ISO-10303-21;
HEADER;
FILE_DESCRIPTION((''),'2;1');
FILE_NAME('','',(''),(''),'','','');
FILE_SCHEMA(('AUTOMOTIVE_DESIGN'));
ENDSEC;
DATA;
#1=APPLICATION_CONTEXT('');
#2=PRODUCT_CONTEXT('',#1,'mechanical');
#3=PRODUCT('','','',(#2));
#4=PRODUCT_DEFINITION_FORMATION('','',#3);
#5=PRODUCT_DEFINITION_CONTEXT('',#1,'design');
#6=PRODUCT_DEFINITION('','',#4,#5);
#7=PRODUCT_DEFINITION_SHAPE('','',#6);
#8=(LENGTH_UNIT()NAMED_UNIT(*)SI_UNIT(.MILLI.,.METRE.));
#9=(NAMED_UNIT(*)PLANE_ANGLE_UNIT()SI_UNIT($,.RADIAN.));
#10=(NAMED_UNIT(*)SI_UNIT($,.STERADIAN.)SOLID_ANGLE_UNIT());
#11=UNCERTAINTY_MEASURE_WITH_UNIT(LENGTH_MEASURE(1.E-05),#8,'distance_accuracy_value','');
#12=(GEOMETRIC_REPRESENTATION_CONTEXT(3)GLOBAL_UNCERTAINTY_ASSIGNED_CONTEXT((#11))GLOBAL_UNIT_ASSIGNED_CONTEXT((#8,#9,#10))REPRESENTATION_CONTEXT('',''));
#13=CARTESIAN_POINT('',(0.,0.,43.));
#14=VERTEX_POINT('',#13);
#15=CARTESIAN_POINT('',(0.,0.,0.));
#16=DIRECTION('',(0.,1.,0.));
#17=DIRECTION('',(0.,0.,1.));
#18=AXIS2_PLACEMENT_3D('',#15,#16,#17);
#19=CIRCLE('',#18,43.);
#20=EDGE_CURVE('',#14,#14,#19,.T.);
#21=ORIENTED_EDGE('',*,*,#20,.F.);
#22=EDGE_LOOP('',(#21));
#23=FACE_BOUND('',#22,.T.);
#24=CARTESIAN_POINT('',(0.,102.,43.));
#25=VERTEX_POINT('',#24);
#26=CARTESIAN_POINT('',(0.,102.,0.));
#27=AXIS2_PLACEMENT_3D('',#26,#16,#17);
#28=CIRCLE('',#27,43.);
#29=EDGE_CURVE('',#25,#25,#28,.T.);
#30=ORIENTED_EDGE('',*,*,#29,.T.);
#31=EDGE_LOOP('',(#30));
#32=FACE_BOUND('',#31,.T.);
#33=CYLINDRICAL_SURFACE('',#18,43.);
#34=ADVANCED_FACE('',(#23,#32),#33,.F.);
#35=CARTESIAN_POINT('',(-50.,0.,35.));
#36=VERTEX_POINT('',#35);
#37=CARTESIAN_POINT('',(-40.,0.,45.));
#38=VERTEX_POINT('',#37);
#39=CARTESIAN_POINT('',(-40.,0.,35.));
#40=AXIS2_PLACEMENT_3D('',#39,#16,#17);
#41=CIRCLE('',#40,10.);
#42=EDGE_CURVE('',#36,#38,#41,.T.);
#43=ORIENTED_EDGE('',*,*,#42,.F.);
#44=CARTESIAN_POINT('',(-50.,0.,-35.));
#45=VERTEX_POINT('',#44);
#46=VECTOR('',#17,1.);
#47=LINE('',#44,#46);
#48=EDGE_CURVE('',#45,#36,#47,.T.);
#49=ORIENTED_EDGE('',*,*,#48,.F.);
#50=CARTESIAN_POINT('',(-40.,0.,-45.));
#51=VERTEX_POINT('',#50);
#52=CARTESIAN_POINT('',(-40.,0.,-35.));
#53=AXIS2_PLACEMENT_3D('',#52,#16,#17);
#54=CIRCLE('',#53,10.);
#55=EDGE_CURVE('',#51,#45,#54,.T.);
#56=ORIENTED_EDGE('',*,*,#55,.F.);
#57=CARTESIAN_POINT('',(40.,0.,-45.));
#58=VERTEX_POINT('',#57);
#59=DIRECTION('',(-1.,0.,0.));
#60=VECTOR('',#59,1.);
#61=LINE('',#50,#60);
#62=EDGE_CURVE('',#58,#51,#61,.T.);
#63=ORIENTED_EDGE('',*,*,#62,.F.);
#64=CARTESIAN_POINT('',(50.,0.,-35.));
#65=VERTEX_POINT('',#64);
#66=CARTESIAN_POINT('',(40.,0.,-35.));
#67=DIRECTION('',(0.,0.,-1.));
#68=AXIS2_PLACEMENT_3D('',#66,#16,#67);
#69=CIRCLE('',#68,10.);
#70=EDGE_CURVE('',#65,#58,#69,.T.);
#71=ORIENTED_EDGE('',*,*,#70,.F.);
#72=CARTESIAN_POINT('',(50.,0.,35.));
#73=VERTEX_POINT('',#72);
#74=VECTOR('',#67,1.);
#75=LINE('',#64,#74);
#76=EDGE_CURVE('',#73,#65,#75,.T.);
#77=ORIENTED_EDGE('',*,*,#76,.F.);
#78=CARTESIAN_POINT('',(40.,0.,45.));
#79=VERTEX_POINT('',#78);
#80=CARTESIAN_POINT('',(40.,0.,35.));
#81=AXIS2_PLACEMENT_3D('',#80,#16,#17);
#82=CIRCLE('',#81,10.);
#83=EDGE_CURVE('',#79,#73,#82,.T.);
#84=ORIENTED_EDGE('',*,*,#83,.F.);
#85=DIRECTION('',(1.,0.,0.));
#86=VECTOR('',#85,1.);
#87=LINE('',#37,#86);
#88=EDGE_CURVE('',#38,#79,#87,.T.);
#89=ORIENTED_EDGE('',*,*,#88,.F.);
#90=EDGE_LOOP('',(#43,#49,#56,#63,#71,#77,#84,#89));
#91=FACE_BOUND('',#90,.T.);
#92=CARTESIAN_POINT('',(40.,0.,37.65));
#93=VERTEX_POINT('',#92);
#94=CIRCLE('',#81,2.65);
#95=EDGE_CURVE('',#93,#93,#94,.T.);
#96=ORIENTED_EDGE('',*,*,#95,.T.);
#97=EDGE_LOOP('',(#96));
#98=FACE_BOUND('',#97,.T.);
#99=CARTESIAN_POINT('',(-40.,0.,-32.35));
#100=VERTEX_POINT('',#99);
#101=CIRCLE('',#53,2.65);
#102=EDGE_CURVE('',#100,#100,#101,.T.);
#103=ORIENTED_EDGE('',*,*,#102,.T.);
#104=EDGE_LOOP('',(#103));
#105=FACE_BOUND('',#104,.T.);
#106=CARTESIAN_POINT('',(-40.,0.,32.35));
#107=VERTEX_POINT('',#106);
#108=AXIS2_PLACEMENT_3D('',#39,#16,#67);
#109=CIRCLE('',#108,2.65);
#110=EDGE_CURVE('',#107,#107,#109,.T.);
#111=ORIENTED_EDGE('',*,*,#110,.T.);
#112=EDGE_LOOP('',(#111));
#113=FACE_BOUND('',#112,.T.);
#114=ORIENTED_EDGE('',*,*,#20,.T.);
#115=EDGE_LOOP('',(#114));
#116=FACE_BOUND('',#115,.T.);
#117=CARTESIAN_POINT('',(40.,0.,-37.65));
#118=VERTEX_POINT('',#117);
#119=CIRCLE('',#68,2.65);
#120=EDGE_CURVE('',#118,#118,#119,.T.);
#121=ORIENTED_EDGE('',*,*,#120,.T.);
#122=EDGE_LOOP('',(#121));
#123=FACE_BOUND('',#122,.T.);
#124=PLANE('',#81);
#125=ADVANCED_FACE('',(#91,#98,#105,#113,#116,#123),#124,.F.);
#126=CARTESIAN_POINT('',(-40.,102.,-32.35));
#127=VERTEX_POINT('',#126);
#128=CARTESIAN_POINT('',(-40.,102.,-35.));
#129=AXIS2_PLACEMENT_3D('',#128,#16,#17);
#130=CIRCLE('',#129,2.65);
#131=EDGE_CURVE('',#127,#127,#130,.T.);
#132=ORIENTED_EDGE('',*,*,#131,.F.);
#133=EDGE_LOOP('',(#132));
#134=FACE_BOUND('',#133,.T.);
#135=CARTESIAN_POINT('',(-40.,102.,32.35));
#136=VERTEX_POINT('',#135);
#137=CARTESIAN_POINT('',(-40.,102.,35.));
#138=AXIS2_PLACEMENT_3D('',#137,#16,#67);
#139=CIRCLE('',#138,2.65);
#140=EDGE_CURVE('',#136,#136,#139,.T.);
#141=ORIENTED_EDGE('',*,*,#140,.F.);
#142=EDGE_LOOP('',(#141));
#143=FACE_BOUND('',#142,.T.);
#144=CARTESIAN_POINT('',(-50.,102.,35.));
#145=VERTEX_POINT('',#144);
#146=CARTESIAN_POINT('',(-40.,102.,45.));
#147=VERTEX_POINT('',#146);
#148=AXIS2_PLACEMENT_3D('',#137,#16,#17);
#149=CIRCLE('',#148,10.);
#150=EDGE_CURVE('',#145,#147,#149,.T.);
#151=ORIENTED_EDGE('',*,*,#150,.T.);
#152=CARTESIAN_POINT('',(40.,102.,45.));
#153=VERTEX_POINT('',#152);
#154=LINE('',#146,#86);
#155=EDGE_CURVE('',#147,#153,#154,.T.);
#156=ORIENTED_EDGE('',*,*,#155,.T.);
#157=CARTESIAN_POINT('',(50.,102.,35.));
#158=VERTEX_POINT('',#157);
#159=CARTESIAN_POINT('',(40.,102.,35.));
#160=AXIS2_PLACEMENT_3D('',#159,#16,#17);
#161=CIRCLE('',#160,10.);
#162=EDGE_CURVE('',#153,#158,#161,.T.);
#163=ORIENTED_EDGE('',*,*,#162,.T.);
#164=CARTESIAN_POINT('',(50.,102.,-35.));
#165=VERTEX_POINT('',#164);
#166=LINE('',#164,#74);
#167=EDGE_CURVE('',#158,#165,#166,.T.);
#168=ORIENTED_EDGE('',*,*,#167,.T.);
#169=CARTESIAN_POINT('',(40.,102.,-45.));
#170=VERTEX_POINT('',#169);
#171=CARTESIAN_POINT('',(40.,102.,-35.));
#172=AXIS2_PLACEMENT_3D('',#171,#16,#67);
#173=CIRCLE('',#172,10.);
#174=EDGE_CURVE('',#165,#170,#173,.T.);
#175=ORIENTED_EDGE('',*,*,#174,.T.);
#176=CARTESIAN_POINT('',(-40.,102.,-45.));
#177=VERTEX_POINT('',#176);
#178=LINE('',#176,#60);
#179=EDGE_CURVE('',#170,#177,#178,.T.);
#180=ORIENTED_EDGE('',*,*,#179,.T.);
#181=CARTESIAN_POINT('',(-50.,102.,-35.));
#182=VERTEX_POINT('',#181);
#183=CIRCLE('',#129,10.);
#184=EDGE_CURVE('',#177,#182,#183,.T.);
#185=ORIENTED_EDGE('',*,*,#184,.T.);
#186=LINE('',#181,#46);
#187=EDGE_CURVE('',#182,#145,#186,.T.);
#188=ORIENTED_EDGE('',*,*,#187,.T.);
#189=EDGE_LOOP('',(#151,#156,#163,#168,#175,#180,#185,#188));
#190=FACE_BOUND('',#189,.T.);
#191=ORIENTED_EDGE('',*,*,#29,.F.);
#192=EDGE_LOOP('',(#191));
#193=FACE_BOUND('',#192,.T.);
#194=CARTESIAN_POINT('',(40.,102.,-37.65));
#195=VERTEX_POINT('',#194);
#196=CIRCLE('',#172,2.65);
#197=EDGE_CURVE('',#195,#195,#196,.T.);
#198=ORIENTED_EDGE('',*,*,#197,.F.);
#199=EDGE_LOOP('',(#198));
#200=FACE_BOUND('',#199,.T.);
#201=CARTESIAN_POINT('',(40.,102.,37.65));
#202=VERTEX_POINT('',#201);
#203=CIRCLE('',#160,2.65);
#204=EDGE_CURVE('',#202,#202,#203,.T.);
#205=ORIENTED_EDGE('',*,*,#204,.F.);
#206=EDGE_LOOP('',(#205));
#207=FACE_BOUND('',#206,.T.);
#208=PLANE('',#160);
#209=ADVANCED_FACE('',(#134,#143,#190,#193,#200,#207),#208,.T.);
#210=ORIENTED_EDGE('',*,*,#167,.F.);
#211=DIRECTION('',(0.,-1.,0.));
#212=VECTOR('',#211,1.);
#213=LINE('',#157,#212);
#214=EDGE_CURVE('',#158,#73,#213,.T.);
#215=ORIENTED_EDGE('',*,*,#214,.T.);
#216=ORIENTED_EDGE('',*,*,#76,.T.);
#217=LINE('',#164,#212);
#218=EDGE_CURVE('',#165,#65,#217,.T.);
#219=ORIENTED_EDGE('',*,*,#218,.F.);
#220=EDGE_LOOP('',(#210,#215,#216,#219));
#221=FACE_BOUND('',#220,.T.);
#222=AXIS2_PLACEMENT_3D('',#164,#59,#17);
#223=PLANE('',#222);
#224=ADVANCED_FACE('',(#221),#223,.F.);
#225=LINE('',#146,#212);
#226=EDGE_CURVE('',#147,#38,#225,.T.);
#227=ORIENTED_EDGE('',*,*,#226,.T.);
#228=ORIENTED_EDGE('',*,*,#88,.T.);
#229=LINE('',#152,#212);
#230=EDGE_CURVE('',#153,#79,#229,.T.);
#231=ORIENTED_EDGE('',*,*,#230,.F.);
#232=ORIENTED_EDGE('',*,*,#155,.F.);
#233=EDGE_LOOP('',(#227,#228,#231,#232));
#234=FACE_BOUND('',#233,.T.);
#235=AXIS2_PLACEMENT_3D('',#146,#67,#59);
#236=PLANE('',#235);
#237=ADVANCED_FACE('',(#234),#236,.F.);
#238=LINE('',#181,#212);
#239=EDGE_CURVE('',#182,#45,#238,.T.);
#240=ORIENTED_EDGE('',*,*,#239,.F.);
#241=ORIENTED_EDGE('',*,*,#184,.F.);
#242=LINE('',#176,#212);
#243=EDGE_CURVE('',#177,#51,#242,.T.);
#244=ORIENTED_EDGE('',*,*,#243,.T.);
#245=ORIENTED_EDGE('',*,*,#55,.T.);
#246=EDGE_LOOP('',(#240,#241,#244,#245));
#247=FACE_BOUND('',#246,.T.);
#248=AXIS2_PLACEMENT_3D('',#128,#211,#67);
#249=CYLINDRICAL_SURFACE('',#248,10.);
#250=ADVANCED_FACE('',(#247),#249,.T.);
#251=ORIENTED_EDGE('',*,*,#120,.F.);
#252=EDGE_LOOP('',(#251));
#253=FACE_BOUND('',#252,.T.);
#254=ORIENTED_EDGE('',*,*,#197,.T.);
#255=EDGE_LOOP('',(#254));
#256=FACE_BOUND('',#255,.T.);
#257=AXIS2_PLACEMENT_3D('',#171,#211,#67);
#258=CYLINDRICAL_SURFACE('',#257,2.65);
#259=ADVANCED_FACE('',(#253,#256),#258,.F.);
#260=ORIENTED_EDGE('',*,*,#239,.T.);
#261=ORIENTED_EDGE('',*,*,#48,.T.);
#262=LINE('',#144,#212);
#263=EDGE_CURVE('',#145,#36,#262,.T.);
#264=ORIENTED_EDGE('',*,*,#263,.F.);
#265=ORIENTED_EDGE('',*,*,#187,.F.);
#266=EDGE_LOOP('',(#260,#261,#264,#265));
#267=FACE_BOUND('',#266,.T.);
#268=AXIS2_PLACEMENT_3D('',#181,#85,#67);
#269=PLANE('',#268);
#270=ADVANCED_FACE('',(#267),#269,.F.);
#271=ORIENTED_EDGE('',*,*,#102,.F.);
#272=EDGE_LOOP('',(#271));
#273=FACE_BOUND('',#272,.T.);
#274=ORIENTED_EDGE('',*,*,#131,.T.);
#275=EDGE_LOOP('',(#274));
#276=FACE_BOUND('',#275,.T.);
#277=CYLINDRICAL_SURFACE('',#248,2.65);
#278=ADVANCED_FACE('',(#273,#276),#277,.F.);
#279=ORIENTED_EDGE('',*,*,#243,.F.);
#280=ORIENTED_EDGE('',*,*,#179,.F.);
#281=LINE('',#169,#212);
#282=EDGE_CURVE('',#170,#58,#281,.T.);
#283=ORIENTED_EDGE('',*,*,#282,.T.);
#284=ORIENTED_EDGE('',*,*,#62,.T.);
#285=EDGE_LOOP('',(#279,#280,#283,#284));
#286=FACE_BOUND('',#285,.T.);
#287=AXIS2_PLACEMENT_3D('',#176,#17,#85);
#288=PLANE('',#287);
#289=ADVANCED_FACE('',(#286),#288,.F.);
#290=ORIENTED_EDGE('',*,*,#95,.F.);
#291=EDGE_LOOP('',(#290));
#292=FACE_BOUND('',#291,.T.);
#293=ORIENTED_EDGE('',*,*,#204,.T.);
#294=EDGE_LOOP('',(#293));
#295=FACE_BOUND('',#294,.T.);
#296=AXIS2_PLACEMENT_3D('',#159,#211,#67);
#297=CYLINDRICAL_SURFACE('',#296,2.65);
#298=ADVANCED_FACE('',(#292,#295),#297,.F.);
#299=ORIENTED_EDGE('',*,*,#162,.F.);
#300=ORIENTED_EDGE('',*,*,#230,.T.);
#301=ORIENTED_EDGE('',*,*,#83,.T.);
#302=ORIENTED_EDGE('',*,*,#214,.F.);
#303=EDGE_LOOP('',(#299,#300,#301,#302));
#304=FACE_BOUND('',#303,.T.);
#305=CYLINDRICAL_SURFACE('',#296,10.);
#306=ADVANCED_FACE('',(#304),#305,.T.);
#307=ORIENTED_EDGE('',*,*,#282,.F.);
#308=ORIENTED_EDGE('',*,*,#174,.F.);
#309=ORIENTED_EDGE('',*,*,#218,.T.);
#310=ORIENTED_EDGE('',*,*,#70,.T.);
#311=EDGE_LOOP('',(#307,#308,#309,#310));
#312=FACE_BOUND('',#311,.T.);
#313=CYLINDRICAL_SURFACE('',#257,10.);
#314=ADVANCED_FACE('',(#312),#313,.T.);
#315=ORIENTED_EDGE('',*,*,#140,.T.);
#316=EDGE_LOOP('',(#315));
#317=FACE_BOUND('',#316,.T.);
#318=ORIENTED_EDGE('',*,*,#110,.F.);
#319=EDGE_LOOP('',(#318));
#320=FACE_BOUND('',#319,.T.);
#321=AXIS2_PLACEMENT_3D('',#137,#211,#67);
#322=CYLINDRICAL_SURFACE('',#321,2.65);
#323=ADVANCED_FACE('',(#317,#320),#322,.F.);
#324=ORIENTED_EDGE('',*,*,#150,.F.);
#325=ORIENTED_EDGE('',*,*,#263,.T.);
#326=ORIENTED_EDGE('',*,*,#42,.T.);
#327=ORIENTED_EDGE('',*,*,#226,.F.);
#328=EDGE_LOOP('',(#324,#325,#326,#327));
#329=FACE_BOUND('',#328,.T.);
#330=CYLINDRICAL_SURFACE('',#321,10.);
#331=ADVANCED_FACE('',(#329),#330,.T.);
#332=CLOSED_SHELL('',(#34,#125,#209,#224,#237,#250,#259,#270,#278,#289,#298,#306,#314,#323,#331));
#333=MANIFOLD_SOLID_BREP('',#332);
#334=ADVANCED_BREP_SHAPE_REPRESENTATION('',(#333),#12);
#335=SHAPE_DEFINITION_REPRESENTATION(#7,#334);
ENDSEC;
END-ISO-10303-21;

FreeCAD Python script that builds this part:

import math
import FreeCAD as App
import Part
import Sketcher

V = App.Vector
Q = App.Units.Quantity

doc = App.newDocument("Part")
params = doc.addObject("Spreadsheet::Sheet", "Params")
for row, (alias, value) in enumerate([
    ("sketch1_radius", "10 mm"),
    ("sketch1_diameter", "5.3 mm"),
    ("sketch1_width", "80 mm"),
    ("sketch1_height", "70 mm"),
    ("pad1_length", "102 mm"),
    ("sketch2_diameter", "86 mm"),
], start=1):
    params.set(f"A{row}", alias)
    params.set(f"B{row}", "=" + value)
    params.setAlias(f"B{row}", alias)

body = doc.addObject("PartDesign::Body", "Body")

# Sketch on XZ plane
sketch1 = body.newObject("Sketcher::SketchObject", "Sketch")
sketch1.AttachmentSupport = (doc.getObject("XZ_Plane"), [""])
sketch1.MapMode = "FlatFace"
sketch1.addGeometry(Part.LineSegment(V(40, -45, 0), V(-40, -45, 0)), False)
sketch1.addGeometry(Part.ArcOfCircle(Part.Circle(V(-40, -35, 0), V(0, 0, 1), 10), math.radians(180), math.radians(270)), False)
sketch1.addGeometry(Part.LineSegment(V(-50, -35, 0), V(-50, 35, 0)), False)
sketch1.addGeometry(Part.ArcOfCircle(Part.Circle(V(-40, 35, 0), V(0, 0, 1), 10), math.radians(90), math.radians(180)), False)
sketch1.addGeometry(Part.LineSegment(V(-40, 45, 0), V(40, 45, 0)), False)
sketch1.addGeometry(Part.ArcOfCircle(Part.Circle(V(40, 35, 0), V(0, 0, 1), 10), math.radians(0), math.radians(90)), False)
sketch1.addGeometry(Part.LineSegment(V(50, 35, 0), V(50, -35, 0)), False)
sketch1.addGeometry(Part.ArcOfCircle(Part.Circle(V(40, -35, 0), V(0, 0, 1), 10), math.radians(-90), math.radians(0)), False)
sketch1.addGeometry(Part.Circle(V(40, 35, 0), V(0, 0, 1), 2.65), False)
sketch1.addGeometry(Part.Circle(V(-40, 35, 0), V(0, 0, 1), 2.65), False)
sketch1.addGeometry(Part.Circle(V(40, -35, 0), V(0, 0, 1), 2.65), False)
sketch1.addGeometry(Part.Circle(V(-40, -35, 0), V(0, 0, 1), 2.65), False)
sketch1.addConstraint(Sketcher.Constraint("Tangent", 0, 2, 1, 2))
sketch1.addConstraint(Sketcher.Constraint("Tangent", 1, 1, 2, 1))
sketch1.addConstraint(Sketcher.Constraint("Tangent", 2, 2, 3, 2))
sketch1.addConstraint(Sketcher.Constraint("Tangent", 3, 1, 4, 1))
sketch1.addConstraint(Sketcher.Constraint("Tangent", 4, 2, 5, 2))
sketch1.addConstraint(Sketcher.Constraint("Tangent", 5, 1, 6, 1))
sketch1.addConstraint(Sketcher.Constraint("Tangent", 6, 2, 7, 2))
sketch1.addConstraint(Sketcher.Constraint("Tangent", 7, 1, 0, 1))
sketch1.addConstraint(Sketcher.Constraint("Horizontal", 0))
sketch1.addConstraint(Sketcher.Constraint("Vertical", 2))
sketch1.addConstraint(Sketcher.Constraint("Horizontal", 4))
sketch1.addConstraint(Sketcher.Constraint("Vertical", 6))
sketch1.addConstraint(Sketcher.Constraint("Coincident", 8, 3, 5, 3))
sketch1.addConstraint(Sketcher.Constraint("Coincident", 9, 3, 3, 3))
sketch1.addConstraint(Sketcher.Constraint("Coincident", 10, 3, 7, 3))
sketch1.addConstraint(Sketcher.Constraint("Coincident", 11, 3, 1, 3))
sketch1.addConstraint(Sketcher.Constraint("Equal", 1, 3))
sketch1.addConstraint(Sketcher.Constraint("Equal", 3, 5))
sketch1.addConstraint(Sketcher.Constraint("Equal", 5, 7))
sketch1.addConstraint(Sketcher.Constraint("Equal", 8, 9))
sketch1.addConstraint(Sketcher.Constraint("Equal", 9, 10))
sketch1.addConstraint(Sketcher.Constraint("Equal", 10, 11))
sketch1.addConstraint(Sketcher.Constraint("Symmetric", 1, 3, 5, 3, -1, 1))
sketch1.addConstraint(Sketcher.Constraint("Radius", 1, Q("10 mm")))
sketch1.addConstraint(Sketcher.Constraint("Diameter", 8, Q("5.3 mm")))
sketch1.addConstraint(Sketcher.Constraint("DistanceX", 0, 2, 0, 1, Q("80 mm")))
sketch1.addConstraint(Sketcher.Constraint("DistanceY", 2, 1, 2, 2, Q("70 mm")))
sketch1.setExpression("Constraints[23]", "Params.sketch1_radius")
sketch1.setExpression("Constraints[24]", "Params.sketch1_diameter")
sketch1.setExpression("Constraints[25]", "Params.sketch1_width")
sketch1.setExpression("Constraints[26]", "Params.sketch1_height")
pad1 = body.newObject("PartDesign::Pad", "Pad")
pad1.Profile = sketch1
pad1.setExpression("Length", "Params.pad1_length")
pad1.Reversed = True

# Sketch on XZ plane
sketch2 = body.newObject("Sketcher::SketchObject", "Sketch001")
sketch2.AttachmentSupport = (doc.getObject("XZ_Plane"), [""])
sketch2.MapMode = "FlatFace"
sketch2.AttachmentOffset = App.Placement(V(0, 0, -102), App.Rotation())
sketch2.addGeometry(Part.Circle(V(0, 0, 0), V(0, 0, 1), 43), False)
sketch2.addConstraint(Sketcher.Constraint("Coincident", 0, 3, -1, 1))
sketch2.addConstraint(Sketcher.Constraint("Diameter", 0, Q("86 mm")))
sketch2.setExpression("Constraints[1]", "Params.sketch2_diameter")
pocket1 = body.newObject("PartDesign::Pocket", "Pocket")
pocket1.Profile = sketch2
pocket1.Type = "ThroughAll"
pocket1.Reversed = True

doc.recompute()
